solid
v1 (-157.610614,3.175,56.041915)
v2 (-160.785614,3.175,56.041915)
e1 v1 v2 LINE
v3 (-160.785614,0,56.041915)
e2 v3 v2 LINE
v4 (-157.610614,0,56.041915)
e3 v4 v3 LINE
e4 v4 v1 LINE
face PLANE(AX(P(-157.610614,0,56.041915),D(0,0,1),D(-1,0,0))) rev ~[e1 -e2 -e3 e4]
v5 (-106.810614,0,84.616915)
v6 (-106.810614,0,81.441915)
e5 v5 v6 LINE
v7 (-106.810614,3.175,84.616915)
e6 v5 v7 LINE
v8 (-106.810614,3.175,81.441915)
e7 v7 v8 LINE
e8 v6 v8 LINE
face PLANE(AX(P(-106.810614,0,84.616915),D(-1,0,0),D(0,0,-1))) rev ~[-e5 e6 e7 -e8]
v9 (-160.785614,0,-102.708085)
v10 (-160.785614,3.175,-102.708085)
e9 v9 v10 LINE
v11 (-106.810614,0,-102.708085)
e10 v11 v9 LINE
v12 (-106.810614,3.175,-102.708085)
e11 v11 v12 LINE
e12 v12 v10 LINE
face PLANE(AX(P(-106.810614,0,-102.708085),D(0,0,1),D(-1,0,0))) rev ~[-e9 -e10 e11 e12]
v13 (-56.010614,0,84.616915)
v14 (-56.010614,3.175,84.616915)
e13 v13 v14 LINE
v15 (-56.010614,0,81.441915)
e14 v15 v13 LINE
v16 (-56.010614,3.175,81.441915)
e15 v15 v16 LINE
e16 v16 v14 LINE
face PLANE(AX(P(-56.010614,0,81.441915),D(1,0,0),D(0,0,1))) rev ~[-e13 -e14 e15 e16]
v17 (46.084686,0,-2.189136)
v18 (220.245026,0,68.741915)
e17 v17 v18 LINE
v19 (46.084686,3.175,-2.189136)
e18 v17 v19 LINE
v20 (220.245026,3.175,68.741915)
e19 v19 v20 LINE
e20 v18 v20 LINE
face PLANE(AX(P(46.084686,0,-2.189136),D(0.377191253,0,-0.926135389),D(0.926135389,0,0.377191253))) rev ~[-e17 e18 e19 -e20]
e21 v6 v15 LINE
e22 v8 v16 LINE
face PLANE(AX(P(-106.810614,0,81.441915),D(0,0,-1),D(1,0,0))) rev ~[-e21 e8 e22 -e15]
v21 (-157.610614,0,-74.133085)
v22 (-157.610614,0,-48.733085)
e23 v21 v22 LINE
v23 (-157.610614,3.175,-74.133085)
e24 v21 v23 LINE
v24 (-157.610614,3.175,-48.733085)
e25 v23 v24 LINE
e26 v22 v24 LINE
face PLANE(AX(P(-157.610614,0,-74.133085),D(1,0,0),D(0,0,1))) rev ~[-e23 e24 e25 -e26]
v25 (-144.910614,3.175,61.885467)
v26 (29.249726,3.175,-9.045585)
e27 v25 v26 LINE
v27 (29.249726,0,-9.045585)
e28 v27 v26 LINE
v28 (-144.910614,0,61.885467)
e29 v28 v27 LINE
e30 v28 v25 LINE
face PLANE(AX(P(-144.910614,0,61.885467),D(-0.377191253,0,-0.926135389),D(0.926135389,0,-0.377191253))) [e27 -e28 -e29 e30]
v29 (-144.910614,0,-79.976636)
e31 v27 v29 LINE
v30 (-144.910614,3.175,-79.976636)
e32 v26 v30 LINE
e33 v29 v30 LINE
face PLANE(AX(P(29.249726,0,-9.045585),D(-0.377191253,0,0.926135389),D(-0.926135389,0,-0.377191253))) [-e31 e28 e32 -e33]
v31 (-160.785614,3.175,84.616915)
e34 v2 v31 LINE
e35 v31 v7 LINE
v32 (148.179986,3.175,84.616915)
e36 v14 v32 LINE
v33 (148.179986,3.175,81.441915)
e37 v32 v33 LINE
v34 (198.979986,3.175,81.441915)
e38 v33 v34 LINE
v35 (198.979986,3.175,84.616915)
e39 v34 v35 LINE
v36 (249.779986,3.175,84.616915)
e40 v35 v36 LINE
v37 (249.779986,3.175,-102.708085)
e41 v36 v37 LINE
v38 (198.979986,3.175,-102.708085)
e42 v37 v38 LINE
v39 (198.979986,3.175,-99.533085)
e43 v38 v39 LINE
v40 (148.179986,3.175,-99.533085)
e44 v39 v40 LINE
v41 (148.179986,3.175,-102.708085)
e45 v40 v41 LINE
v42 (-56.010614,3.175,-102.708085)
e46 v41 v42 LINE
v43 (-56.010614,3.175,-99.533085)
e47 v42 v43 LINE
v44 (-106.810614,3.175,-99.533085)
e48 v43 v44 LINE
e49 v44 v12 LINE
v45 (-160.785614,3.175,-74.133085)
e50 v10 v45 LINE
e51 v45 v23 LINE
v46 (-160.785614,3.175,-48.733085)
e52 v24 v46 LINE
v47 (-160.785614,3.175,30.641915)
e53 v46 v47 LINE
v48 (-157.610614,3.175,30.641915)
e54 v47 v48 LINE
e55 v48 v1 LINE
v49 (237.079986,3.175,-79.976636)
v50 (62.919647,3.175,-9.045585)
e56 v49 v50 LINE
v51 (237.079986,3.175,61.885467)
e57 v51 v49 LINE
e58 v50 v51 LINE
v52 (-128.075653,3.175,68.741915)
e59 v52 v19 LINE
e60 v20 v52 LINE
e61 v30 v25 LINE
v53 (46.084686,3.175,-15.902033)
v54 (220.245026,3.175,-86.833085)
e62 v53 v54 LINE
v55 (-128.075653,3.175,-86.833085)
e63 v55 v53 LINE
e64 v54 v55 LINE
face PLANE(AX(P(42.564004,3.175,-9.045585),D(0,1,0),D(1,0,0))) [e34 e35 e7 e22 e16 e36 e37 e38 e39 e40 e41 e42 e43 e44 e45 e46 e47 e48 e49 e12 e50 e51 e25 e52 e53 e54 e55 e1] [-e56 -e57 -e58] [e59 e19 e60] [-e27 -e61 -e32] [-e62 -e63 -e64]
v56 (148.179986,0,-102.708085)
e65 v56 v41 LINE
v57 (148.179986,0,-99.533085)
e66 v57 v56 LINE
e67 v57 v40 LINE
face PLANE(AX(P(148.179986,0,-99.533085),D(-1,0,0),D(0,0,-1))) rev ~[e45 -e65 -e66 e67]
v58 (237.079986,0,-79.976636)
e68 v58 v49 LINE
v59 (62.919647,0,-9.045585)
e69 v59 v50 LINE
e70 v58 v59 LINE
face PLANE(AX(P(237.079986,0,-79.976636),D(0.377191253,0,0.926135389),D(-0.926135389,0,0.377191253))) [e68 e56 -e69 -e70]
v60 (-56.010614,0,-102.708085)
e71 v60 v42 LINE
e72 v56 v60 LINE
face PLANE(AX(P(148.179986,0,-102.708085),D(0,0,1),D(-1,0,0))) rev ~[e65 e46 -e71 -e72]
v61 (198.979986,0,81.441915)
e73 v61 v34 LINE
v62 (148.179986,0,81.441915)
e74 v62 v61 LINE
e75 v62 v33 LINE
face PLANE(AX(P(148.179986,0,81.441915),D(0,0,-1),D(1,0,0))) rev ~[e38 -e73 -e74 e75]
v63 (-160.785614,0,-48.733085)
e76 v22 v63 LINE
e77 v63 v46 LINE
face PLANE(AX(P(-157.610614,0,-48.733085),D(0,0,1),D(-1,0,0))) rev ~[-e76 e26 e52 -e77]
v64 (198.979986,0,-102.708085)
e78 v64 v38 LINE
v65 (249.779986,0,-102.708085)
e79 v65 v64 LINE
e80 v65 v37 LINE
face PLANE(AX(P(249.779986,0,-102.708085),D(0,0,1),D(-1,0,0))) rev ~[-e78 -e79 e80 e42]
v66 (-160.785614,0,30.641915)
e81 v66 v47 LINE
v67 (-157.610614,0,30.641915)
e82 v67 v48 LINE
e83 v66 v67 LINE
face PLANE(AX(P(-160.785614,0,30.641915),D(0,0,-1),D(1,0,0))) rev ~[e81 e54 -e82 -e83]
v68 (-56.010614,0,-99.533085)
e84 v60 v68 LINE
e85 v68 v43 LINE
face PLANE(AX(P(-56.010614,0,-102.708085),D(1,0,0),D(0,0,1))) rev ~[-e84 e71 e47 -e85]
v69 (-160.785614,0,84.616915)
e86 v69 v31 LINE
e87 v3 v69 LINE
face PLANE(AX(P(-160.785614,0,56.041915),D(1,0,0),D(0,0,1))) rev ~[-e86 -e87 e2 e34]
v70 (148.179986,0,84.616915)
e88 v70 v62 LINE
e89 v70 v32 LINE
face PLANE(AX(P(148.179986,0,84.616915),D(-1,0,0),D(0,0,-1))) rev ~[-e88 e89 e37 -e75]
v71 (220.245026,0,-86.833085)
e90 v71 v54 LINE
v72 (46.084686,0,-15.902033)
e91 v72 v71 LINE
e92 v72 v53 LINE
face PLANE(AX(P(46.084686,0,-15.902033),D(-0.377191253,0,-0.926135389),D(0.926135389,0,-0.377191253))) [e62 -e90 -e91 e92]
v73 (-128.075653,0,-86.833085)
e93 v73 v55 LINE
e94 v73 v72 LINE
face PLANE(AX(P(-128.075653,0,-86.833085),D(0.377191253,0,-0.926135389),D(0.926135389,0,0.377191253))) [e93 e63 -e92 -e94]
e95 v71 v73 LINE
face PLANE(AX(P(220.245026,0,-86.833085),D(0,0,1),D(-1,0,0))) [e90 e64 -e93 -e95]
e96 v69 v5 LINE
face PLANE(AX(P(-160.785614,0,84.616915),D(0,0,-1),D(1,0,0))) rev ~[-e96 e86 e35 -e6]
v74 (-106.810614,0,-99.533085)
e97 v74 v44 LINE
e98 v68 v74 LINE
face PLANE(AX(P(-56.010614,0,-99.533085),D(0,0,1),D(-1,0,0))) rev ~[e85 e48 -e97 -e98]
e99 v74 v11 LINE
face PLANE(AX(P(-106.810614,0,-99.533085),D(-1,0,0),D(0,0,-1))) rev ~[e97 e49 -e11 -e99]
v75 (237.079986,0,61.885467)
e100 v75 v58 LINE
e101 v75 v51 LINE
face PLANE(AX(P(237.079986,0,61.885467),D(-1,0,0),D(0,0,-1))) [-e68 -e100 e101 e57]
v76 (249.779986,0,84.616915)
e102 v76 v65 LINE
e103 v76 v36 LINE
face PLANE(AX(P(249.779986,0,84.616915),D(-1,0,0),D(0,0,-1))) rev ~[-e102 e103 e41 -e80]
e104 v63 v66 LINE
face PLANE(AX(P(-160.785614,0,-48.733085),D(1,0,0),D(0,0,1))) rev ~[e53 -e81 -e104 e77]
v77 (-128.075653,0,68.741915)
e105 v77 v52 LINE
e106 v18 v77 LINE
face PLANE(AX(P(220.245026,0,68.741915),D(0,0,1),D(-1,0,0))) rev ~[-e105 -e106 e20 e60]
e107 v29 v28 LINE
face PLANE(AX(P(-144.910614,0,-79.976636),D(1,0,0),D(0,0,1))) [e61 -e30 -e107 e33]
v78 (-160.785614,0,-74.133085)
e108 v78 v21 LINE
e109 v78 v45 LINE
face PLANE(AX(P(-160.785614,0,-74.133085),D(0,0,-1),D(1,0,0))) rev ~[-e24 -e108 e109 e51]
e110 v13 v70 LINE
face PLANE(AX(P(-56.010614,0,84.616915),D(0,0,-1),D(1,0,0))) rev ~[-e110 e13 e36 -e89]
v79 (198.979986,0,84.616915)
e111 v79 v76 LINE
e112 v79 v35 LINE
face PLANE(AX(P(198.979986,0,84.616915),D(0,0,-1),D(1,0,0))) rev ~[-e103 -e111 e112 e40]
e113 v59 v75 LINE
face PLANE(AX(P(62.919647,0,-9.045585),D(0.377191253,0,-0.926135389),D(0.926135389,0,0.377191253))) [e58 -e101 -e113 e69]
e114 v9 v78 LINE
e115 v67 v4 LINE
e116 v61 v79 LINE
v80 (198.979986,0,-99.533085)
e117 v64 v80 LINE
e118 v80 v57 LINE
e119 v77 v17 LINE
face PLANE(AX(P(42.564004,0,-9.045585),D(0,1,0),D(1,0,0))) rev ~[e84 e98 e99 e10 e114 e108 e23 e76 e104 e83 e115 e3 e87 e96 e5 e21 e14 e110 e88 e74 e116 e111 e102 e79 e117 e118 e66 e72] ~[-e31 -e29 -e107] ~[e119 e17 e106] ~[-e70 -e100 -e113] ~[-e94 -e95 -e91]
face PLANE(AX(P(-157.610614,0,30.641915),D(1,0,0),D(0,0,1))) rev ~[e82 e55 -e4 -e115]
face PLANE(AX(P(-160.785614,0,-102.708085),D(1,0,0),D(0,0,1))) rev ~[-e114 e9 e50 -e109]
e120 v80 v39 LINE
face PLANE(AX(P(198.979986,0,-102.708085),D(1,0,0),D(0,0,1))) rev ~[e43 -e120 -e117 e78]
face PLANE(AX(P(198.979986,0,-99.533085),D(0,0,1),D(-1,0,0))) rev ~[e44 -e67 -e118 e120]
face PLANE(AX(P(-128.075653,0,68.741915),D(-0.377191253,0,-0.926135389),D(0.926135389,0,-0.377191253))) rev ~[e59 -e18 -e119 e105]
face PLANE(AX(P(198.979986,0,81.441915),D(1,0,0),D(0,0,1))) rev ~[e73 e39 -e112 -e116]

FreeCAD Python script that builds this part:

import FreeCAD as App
import Part
import Sketcher
Q = App.Units.Quantity

doc = App.newDocument("Part")
params = doc.addObject("Spreadsheet::Sheet", "Params")
for row, (alias, value) in enumerate([
    ("sketch1_width", "2 in"),
    ("sketch1_height", "1 in"),
    ("sketch1_width2", "8.039 in"),
    ("sketch1_width3", "2.125 in"),
    ("sketch1_height2", "7.375 in"),
    ("pad1_length", "0.125 in"),
], start=1):
    params.set(f"A{row}", alias)
    params.set(f"B{row}", "=" + value)
    params.setAlias(f"B{row}", alias)

body = doc.addObject("PartDesign::Body", "Body")

# Sketch on XZ plane
sketch1 = doc.addObject("Sketcher::SketchObject", "Sketch")
body.addObject(sketch1)
sketch1.AttachmentSupport = (doc.XZ_Plane, [""])
sketch1.MapMode = "FlatFace"
sketch1.addGeometry(Part.LineSegment(App.Vector(-56, 81.4, 0), App.Vector(-56, 84.6, 0)), False)
sketch1.addGeometry(Part.LineSegment(App.Vector(-56, 84.6, 0), App.Vector(148.2, 84.6, 0)), False)
sketch1.addGeometry(Part.LineSegment(App.Vector(148.2, 84.6, 0), App.Vector(148.2, 81.4, 0)), False)
sketch1.addGeometry(Part.LineSegment(App.Vector(148.2, 81.4, 0), App.Vector(199, 81.4, 0)), False)
sketch1.addGeometry(Part.LineSegment(App.Vector(199, 81.4, 0), App.Vector(199, 84.6, 0)), False)
sketch1.addGeometry(Part.LineSegment(App.Vector(199, 84.6, 0), App.Vector(249.8, 84.6, 0)), False)
sketch1.addGeometry(Part.LineSegment(App.Vector(249.8, 84.6, 0), App.Vector(249.8, -102.7, 0)), False)
sketch1.addGeometry(Part.LineSegment(App.Vector(249.8, -102.7, 0), App.Vector(199, -102.7, 0)), False)
sketch1.addGeometry(Part.LineSegment(App.Vector(199, -102.7, 0), App.Vector(199, -99.5, 0)), False)
sketch1.addGeometry(Part.LineSegment(App.Vector(199, -99.5, 0), App.Vector(148.2, -99.5, 0)), False)
sketch1.addGeometry(Part.LineSegment(App.Vector(148.2, -99.5, 0), App.Vector(148.2, -102.7, 0)), False)
sketch1.addGeometry(Part.LineSegment(App.Vector(148.2, -102.7, 0), App.Vector(-56, -102.7, 0)), False)
sketch1.addGeometry(Part.LineSegment(App.Vector(-56, -102.7, 0), App.Vector(-56, -99.5, 0)), False)
sketch1.addGeometry(Part.LineSegment(App.Vector(-56, -99.5, 0), App.Vector(-106.8, -99.5, 0)), False)
sketch1.addGeometry(Part.LineSegment(App.Vector(-106.8, -99.5, 0), App.Vector(-106.8, -102.7, 0)), False)
sketch1.addGeometry(Part.LineSegment(App.Vector(-106.8, -102.7, 0), App.Vector(-160.8, -102.7, 0)), False)
sketch1.addGeometry(Part.LineSegment(App.Vector(-160.8, -102.7, 0), App.Vector(-160.8, -74.1, 0)), False)
sketch1.addGeometry(Part.LineSegment(App.Vector(-160.8, -74.1, 0), App.Vector(-157.6, -74.1, 0)), False)
sketch1.addGeometry(Part.LineSegment(App.Vector(-157.6, -74.1, 0), App.Vector(-157.6, -48.7, 0)), False)
sketch1.addGeometry(Part.LineSegment(App.Vector(-157.6, -48.7, 0), App.Vector(-160.8, -48.7, 0)), False)
sketch1.addGeometry(Part.LineSegment(App.Vector(-160.8, -48.7, 0), App.Vector(-160.8, 30.6, 0)), False)
sketch1.addGeometry(Part.LineSegment(App.Vector(-160.8, 30.6, 0), App.Vector(-157.6, 30.6, 0)), False)
sketch1.addGeometry(Part.LineSegment(App.Vector(-157.6, 30.6, 0), App.Vector(-157.6, 56, 0)), False)
sketch1.addGeometry(Part.LineSegment(App.Vector(-157.6, 56, 0), App.Vector(-160.8, 56, 0)), False)
sketch1.addGeometry(Part.LineSegment(App.Vector(-160.8, 56, 0), App.Vector(-160.8, 84.6, 0)), False)
sketch1.addGeometry(Part.LineSegment(App.Vector(-160.8, 84.6, 0), App.Vector(-106.8, 84.6, 0)), False)
sketch1.addGeometry(Part.LineSegment(App.Vector(-106.8, 84.6, 0), App.Vector(-106.8, 81.4, 0)), False)
sketch1.addGeometry(Part.LineSegment(App.Vector(-106.8, 81.4, 0), App.Vector(-56, 81.4, 0)), False)
sketch1.addGeometry(Part.LineSegment(App.Vector(29.2, -9, 0), App.Vector(-144.9, 61.9, 0)), False)
sketch1.addGeometry(Part.LineSegment(App.Vector(-144.9, 61.9, 0), App.Vector(-144.9, -80, 0)), False)
sketch1.addGeometry(Part.LineSegment(App.Vector(-144.9, -80, 0), App.Vector(29.2, -9, 0)), False)
sketch1.addGeometry(Part.LineSegment(App.Vector(220.2, 68.7, 0), App.Vector(-128.1, 68.7, 0)), False)
sketch1.addGeometry(Part.LineSegment(App.Vector(-128.1, 68.7, 0), App.Vector(46.1, -2.2, 0)), False)
sketch1.addGeometry(Part.LineSegment(App.Vector(46.1, -2.2, 0), App.Vector(220.2, 68.7, 0)), False)
sketch1.addGeometry(Part.LineSegment(App.Vector(237.1, 61.9, 0), App.Vector(62.9, -9, 0)), False)
sketch1.addGeometry(Part.LineSegment(App.Vector(62.9, -9, 0), App.Vector(237.1, -80, 0)), False)
sketch1.addGeometry(Part.LineSegment(App.Vector(237.1, -80, 0), App.Vector(237.1, 61.9, 0)), False)
sketch1.addGeometry(Part.LineSegment(App.Vector(220.2, -86.8, 0), App.Vector(46.1, -15.9, 0)), False)
sketch1.addGeometry(Part.LineSegment(App.Vector(46.1, -15.9, 0), App.Vector(-128.1, -86.8, 0)), False)
sketch1.addGeometry(Part.LineSegment(App.Vector(-128.1, -86.8, 0), App.Vector(220.2, -86.8, 0)), False)
sketch1.addConstraint(Sketcher.Constraint("Coincident", 0, 2, 1, 1))
sketch1.addConstraint(Sketcher.Constraint("Coincident", 1, 2, 2, 1))
sketch1.addConstraint(Sketcher.Constraint("Coincident", 2, 2, 3, 1))
sketch1.addConstraint(Sketcher.Constraint("Coincident", 3, 2, 4, 1))
sketch1.addConstraint(Sketcher.Constraint("Coincident", 4, 2, 5, 1))
sketch1.addConstraint(Sketcher.Constraint("Coincident", 5, 2, 6, 1))
sketch1.addConstraint(Sketcher.Constraint("Coincident", 6, 2, 7, 1))
sketch1.addConstraint(Sketcher.Constraint("Coincident", 7, 2, 8, 1))
sketch1.addConstraint(Sketcher.Constraint("Coincident", 8, 2, 9, 1))
sketch1.addConstraint(Sketcher.Constraint("Coincident", 9, 2, 10, 1))
sketch1.addConstraint(Sketcher.Constraint("Coincident", 10, 2, 11, 1))
sketch1.addConstraint(Sketcher.Constraint("Coincident", 11, 2, 12, 1))
sketch1.addConstraint(Sketcher.Constraint("Coincident", 12, 2, 13, 1))
sketch1.addConstraint(Sketcher.Constraint("Coincident", 13, 2, 14, 1))
sketch1.addConstraint(Sketcher.Constraint("Coincident", 14, 2, 15, 1))
sketch1.addConstraint(Sketcher.Constraint("Coincident", 15, 2, 16, 1))
sketch1.addConstraint(Sketcher.Constraint("Coincident", 16, 2, 17, 1))
sketch1.addConstraint(Sketcher.Constraint("Coincident", 17, 2, 18, 1))
sketch1.addConstraint(Sketcher.Constraint("Coincident", 18, 2, 19, 1))
sketch1.addConstraint(Sketcher.Constraint("Coincident", 19, 2, 20, 1))
sketch1.addConstraint(Sketcher.Constraint("Coincident", 20, 2, 21, 1))
sketch1.addConstraint(Sketcher.Constraint("Coincident", 21, 2, 22, 1))
sketch1.addConstraint(Sketcher.Constraint("Coincident", 22, 2, 23, 1))
sketch1.addConstraint(Sketcher.Constraint("Coincident", 23, 2, 24, 1))
sketch1.addConstraint(Sketcher.Constraint("Coincident", 24, 2, 25, 1))
sketch1.addConstraint(Sketcher.Constraint("Coincident", 25, 2, 26, 1))
sketch1.addConstraint(Sketcher.Constraint("Coincident", 26, 2, 27, 1))
sketch1.addConstraint(Sketcher.Constraint("Coincident", 27, 2, 0, 1))
sketch1.addConstraint(Sketcher.Constraint("Coincident", 28, 2, 29, 1))
sketch1.addConstraint(Sketcher.Constraint("Coincident", 29, 2, 30, 1))
sketch1.addConstraint(Sketcher.Constraint("Coincident", 30, 2, 28, 1))
sketch1.addConstraint(Sketcher.Constraint("Coincident", 31, 2, 32, 1))
sketch1.addConstraint(Sketcher.Constraint("Coincident", 32, 2, 33, 1))
sketch1.addConstraint(Sketcher.Constraint("Coincident", 33, 2, 31, 1))
sketch1.addConstraint(Sketcher.Constraint("Coincident", 34, 2, 35, 1))
sketch1.addConstraint(Sketcher.Constraint("Coincident", 35, 2, 36, 1))
sketch1.addConstraint(Sketcher.Constraint("Coincident", 36, 2, 34, 1))
sketch1.addConstraint(Sketcher.Constraint("Coincident", 37, 2, 38, 1))
sketch1.addConstraint(Sketcher.Constraint("Coincident", 38, 2, 39, 1))
sketch1.addConstraint(Sketcher.Constraint("Coincident", 39, 2, 37, 1))
sketch1.addConstraint(Sketcher.Constraint("Vertical", 0))
sketch1.addConstraint(Sketcher.Constraint("Horizontal", 1))
sketch1.addConstraint(Sketcher.Constraint("Vertical", 2))
sketch1.addConstraint(Sketcher.Constraint("Horizontal", 3))
sketch1.addConstraint(Sketcher.Constraint("Vertical", 4))
sketch1.addConstraint(Sketcher.Constraint("Horizontal", 5))
sketch1.addConstraint(Sketcher.Constraint("Vertical", 6))
sketch1.addConstraint(Sketcher.Constraint("Horizontal", 7))
sketch1.addConstraint(Sketcher.Constraint("Vertical", 8))
sketch1.addConstraint(Sketcher.Constraint("Horizontal", 9))
sketch1.addConstraint(Sketcher.Constraint("Vertical", 10))
sketch1.addConstraint(Sketcher.Constraint("Horizontal", 11))
sketch1.addConstraint(Sketcher.Constraint("Vertical", 12))
sketch1.addConstraint(Sketcher.Constraint("Horizontal", 13))
sketch1.addConstraint(Sketcher.Constraint("Vertical", 14))
sketch1.addConstraint(Sketcher.Constraint("Horizontal", 15))
sketch1.addConstraint(Sketcher.Constraint("Vertical", 16))
sketch1.addConstraint(Sketcher.Constraint("Horizontal", 17))
sketch1.addConstraint(Sketcher.Constraint("Vertical", 18))
sketch1.addConstraint(Sketcher.Constraint("Horizontal", 19))
sketch1.addConstraint(Sketcher.Constraint("Vertical", 20))
sketch1.addConstraint(Sketcher.Constraint("Horizontal", 21))
sketch1.addConstraint(Sketcher.Constraint("Vertical", 22))
sketch1.addConstraint(Sketcher.Constraint("Horizontal", 23))
sketch1.addConstraint(Sketcher.Constraint("Vertical", 24))
sketch1.addConstraint(Sketcher.Constraint("Horizontal", 25))
sketch1.addConstraint(Sketcher.Constraint("Vertical", 26))
sketch1.addConstraint(Sketcher.Constraint("Horizontal", 27))
sketch1.addConstraint(Sketcher.Constraint("Vertical", 29))
sketch1.addConstraint(Sketcher.Constraint("Horizontal", 31))
sketch1.addConstraint(Sketcher.Constraint("Vertical", 36))
sketch1.addConstraint(Sketcher.Constraint("Horizontal", 39))
sketch1.addConstraint(Sketcher.Constraint("Parallel", 28, 32))
sketch1.addConstraint(Sketcher.Constraint("Parallel", 30, 33))
sketch1.addConstraint(Sketcher.Constraint("Parallel", 33, 34))
sketch1.addConstraint(Sketcher.Constraint("Parallel", 32, 35))
sketch1.addConstraint(Sketcher.Constraint("Parallel", 35, 37))
sketch1.addConstraint(Sketcher.Constraint("Parallel", 34, 38))
sketch1.addConstraint(Sketcher.Constraint("Horizontal", 1, 2, 4, 2))
sketch1.addConstraint(Sketcher.Constraint("Horizontal", 7, 2, 10, 2))
sketch1.addConstraint(Sketcher.Constraint("Horizontal", 9, 2, 12, 2))
sketch1.addConstraint(Sketcher.Constraint("Horizontal", 11, 2, 14, 2))
sketch1.addConstraint(Sketcher.Constraint("Horizontal", 5, 2, 24, 2))
sketch1.addConstraint(Sketcher.Constraint("Horizontal", 3, 2, 26, 2))
sketch1.addConstraint(Sketcher.Constraint("Horizontal", 30, 2, 34, 2))
sketch1.addConstraint(Sketcher.Constraint("Horizontal", 29, 2, 35, 2))
sketch1.addConstraint(Sketcher.Constraint("Horizontal", 28, 2, 36, 2))
sketch1.addConstraint(Sketcher.Constraint("Vertical", 4, 2, 7, 2))
sketch1.addConstraint(Sketcher.Constraint("Vertical", 2, 2, 9, 2))
sketch1.addConstraint(Sketcher.Constraint("Vertical", 0, 2, 11, 2))
sketch1.addConstraint(Sketcher.Constraint("Vertical", 16, 2, 19, 2))
sketch1.addConstraint(Sketcher.Constraint("Vertical", 18, 2, 21, 2))
sketch1.addConstraint(Sketcher.Constraint("Vertical", 20, 2, 23, 2))
sketch1.addConstraint(Sketcher.Constraint("Vertical", 14, 2, 25, 2))
sketch1.addConstraint(Sketcher.Constraint("Vertical", 32, 2, 37, 2))
sketch1.addConstraint(Sketcher.Constraint("Vertical", 31, 2, 38, 2))
sketch1.addConstraint(Sketcher.Constraint("Equal", 3, 5))
sketch1.addConstraint(Sketcher.Constraint("Equal", 9, 13))
sketch1.addConstraint(Sketcher.Constraint("Equal", 23, 0))
sketch1.addConstraint(Sketcher.Constraint("Equal", 4, 8))
sketch1.addConstraint(Sketcher.Constraint("Equal", 18, 22))
sketch1.addConstraint(Sketcher.Constraint("Equal", 16, 24))
sketch1.addConstraint(Sketcher.Constraint("Equal", 30, 32))
sketch1.addConstraint(Sketcher.Constraint("DistanceX", 3, 1, 3, 2, Q("2 in")))
sketch1.addConstraint(Sketcher.Constraint("DistanceY", 18, 1, 18, 2, Q("1 in")))
sketch1.addConstraint(Sketcher.Constraint("DistanceY", 13, 2, 16, 2, Q("1 in")))
sketch1.addConstraint(Sketcher.Constraint("DistanceX", 17, 2, 13, 2, Q("2 in")))
sketch1.addConstraint(Sketcher.Constraint("DistanceX", 22, 2, 28, 2, Q("0.5 in")))
sketch1.addConstraint(Sketcher.Constraint("DistanceY", 31, 2, 26, 2, Q("0.5 in")))
sketch1.addConstraint(Sketcher.Constraint("DistanceX", 35, 2, 6, 2, Q("0.5 in")))
sketch1.addConstraint(Sketcher.Constraint("DistanceY", 13, 2, 38, 2, Q("0.5 in")))
sketch1.addConstraint(Sketcher.Constraint("DistanceX", 1, 1, 1, 2, Q("8.039 in")))
sketch1.addConstraint(Sketcher.Constraint("DistanceX", 15, 2, 15, 1, Q("2.125 in")))
sketch1.addConstraint(Sketcher.Constraint("DistanceY", 6, 2, 6, 1, Q("7.375 in")))
sketch1.addConstraint(Sketcher.Constraint("DistanceY", 12, 2, 30, 2, Q("3.5625 in")))
sketch1.addConstraint(Sketcher.Constraint("DistanceX", 32, 2, 2, 2, Q("4.0195 in")))
sketch1.addConstraint(Sketcher.Constraint("DistanceX", 31, 2, 31, 1, 348.320678))
sketch1.addConstraint(Sketcher.Constraint("DistanceY", 29, 2, 29, 1, 141.862102))
sketch1.addConstraint(Sketcher.Constraint("DistanceX", 0, 2, -1, 1, 56.010614))
sketch1.addConstraint(Sketcher.Constraint("DistanceY", -1, 1, 0, 2, 84.616915))
sketch1.setExpression("Constraints[103]", "Params.sketch1_width")
sketch1.setExpression("Constraints[104]", "Params.sketch1_height")
sketch1.setExpression("Constraints[111]", "Params.sketch1_width2")
sketch1.setExpression("Constraints[112]", "Params.sketch1_width3")
sketch1.setExpression("Constraints[113]", "Params.sketch1_height2")
pad1 = doc.addObject("PartDesign::Pad", "Pad")
body.addObject(pad1)
pad1.Profile = sketch1
pad1.setExpression("Length", "Params.pad1_length")
pad1.Reversed = True

doc.recompute()
